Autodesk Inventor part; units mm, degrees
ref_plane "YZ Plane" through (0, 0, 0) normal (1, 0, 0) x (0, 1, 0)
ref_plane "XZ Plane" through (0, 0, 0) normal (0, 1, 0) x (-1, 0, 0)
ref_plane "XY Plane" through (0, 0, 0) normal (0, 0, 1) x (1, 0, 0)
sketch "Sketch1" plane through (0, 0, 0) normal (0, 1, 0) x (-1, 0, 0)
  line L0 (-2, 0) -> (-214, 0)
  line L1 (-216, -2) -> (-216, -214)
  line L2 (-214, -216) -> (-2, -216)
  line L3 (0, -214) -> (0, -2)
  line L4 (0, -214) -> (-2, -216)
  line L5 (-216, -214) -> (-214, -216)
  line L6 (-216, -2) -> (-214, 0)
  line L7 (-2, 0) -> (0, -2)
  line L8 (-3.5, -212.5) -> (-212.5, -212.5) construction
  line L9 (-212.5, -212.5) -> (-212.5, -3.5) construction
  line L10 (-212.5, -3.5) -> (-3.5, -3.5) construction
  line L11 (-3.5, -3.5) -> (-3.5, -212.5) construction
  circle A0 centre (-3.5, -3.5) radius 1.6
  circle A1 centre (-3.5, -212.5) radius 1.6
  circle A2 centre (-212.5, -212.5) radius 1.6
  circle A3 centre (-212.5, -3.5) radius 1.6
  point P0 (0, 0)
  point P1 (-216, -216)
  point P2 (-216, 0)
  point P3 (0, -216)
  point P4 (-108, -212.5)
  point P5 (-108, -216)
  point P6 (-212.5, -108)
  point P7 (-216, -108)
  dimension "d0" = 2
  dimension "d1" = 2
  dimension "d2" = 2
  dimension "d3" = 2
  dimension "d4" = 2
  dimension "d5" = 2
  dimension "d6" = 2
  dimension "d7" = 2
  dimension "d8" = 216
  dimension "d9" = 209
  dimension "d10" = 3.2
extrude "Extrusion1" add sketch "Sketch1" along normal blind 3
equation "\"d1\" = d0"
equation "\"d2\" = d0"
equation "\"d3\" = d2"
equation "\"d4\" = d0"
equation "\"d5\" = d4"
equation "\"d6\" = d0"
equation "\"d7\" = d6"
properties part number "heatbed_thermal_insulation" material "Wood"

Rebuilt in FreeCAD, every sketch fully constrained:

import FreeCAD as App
import Part
import Sketcher

V = App.Vector


def add_polygon(sketch, points):
    """Adds a closed chain of lines whose ends are joined by coincident constraints."""
    first, n = sketch.GeometryCount, len(points)
    for a, b in zip(points, points[1:] + points[:1]):
        sketch.addGeometry(Part.LineSegment(App.Vector(*a, 0), App.Vector(*b, 0)), False)
    for i in range(n):
        sketch.addConstraint(Sketcher.Constraint("Coincident", first + i, 2, first + (i + 1) % n, 1))

doc = App.newDocument("Part")
body = doc.addObject("PartDesign::Body", "Body")

sketch1 = body.newObject("Sketcher::SketchObject", "Sketch")
sketch1.AttachmentSupport = (doc.getObject("XZ_Plane"), [""])
sketch1.MapMode = "FlatFace"
add_polygon(sketch1, [(0, -2), (2, 0), (214, 0), (216, -2), (216, -214), (214, -216), (2, -216), (0, -214)])
sketch1.addGeometry(Part.Circle(V(212.5, -212.5, 0), V(0, 0, 1), 1.6), False)
sketch1.addGeometry(Part.Circle(V(3.5, -212.5, 0), V(0, 0, 1), 1.6), False)
sketch1.addGeometry(Part.Circle(V(212.5, -3.5, 0), V(0, 0, 1), 1.6), False)
sketch1.addGeometry(Part.Circle(V(3.5, -3.5, 0), V(0, 0, 1), 1.6), False)
sketch1.addConstraint([
    Sketcher.Constraint("Horizontal", 1),
    Sketcher.Constraint("Vertical", 3),
    Sketcher.Constraint("Horizontal", 5),
    Sketcher.Constraint("Vertical", 7),
    Sketcher.Constraint("Equal", 8, 9),
    Sketcher.Constraint("Equal", 9, 10),
    Sketcher.Constraint("Equal", 10, 11),
    Sketcher.Constraint("PointOnObject", 0, 2, -1),
    Sketcher.Constraint("PointOnObject", 6, 2, -2),
    Sketcher.Constraint("Perpendicular", 0, 2),
    Sketcher.Constraint("Perpendicular", 2, 4),
    Sketcher.Constraint("Perpendicular", 4, 6),
    Sketcher.Constraint("Horizontal", 8, 3, 9, 3),
    Sketcher.Constraint("Horizontal", 10, 3, 11, 3),
    Sketcher.Constraint("Horizontal", 3, 2, 6, 2),
    Sketcher.Constraint("Horizontal", 2, 2, 7, 2),
    Sketcher.Constraint("Vertical", 8, 3, 10, 3),
    Sketcher.Constraint("Vertical", 9, 3, 11, 3),
    Sketcher.Constraint("Vertical", 1, 2, 4, 2),
    Sketcher.Constraint("Vertical", 0, 2, 5, 2),
    Sketcher.Constraint("Equal", 5, 3),
    Sketcher.Constraint("Diameter", 8, 3.2),
    Sketcher.Constraint("DistanceX", -1, 1, 0, 2, 2.0),
    Sketcher.Constraint("DistanceX", -1, 1, 2, 2, 216.0),
    Sketcher.Constraint("DistanceX", 9, 3, 8, 3, 209.0),
    Sketcher.Constraint("DistanceY", 8, 3, 10, 3, 209.0),
    Sketcher.Constraint("DistanceX", -1, 1, 8, 3, 212.5),
    Sketcher.Constraint("DistanceY", 8, 3, -1, 1, 212.5),
])
pad1 = body.newObject("PartDesign::Pad", "Pad")
pad1.Profile = sketch1
pad1.Length = 3
pad1.Reversed = True

doc.recompute()
